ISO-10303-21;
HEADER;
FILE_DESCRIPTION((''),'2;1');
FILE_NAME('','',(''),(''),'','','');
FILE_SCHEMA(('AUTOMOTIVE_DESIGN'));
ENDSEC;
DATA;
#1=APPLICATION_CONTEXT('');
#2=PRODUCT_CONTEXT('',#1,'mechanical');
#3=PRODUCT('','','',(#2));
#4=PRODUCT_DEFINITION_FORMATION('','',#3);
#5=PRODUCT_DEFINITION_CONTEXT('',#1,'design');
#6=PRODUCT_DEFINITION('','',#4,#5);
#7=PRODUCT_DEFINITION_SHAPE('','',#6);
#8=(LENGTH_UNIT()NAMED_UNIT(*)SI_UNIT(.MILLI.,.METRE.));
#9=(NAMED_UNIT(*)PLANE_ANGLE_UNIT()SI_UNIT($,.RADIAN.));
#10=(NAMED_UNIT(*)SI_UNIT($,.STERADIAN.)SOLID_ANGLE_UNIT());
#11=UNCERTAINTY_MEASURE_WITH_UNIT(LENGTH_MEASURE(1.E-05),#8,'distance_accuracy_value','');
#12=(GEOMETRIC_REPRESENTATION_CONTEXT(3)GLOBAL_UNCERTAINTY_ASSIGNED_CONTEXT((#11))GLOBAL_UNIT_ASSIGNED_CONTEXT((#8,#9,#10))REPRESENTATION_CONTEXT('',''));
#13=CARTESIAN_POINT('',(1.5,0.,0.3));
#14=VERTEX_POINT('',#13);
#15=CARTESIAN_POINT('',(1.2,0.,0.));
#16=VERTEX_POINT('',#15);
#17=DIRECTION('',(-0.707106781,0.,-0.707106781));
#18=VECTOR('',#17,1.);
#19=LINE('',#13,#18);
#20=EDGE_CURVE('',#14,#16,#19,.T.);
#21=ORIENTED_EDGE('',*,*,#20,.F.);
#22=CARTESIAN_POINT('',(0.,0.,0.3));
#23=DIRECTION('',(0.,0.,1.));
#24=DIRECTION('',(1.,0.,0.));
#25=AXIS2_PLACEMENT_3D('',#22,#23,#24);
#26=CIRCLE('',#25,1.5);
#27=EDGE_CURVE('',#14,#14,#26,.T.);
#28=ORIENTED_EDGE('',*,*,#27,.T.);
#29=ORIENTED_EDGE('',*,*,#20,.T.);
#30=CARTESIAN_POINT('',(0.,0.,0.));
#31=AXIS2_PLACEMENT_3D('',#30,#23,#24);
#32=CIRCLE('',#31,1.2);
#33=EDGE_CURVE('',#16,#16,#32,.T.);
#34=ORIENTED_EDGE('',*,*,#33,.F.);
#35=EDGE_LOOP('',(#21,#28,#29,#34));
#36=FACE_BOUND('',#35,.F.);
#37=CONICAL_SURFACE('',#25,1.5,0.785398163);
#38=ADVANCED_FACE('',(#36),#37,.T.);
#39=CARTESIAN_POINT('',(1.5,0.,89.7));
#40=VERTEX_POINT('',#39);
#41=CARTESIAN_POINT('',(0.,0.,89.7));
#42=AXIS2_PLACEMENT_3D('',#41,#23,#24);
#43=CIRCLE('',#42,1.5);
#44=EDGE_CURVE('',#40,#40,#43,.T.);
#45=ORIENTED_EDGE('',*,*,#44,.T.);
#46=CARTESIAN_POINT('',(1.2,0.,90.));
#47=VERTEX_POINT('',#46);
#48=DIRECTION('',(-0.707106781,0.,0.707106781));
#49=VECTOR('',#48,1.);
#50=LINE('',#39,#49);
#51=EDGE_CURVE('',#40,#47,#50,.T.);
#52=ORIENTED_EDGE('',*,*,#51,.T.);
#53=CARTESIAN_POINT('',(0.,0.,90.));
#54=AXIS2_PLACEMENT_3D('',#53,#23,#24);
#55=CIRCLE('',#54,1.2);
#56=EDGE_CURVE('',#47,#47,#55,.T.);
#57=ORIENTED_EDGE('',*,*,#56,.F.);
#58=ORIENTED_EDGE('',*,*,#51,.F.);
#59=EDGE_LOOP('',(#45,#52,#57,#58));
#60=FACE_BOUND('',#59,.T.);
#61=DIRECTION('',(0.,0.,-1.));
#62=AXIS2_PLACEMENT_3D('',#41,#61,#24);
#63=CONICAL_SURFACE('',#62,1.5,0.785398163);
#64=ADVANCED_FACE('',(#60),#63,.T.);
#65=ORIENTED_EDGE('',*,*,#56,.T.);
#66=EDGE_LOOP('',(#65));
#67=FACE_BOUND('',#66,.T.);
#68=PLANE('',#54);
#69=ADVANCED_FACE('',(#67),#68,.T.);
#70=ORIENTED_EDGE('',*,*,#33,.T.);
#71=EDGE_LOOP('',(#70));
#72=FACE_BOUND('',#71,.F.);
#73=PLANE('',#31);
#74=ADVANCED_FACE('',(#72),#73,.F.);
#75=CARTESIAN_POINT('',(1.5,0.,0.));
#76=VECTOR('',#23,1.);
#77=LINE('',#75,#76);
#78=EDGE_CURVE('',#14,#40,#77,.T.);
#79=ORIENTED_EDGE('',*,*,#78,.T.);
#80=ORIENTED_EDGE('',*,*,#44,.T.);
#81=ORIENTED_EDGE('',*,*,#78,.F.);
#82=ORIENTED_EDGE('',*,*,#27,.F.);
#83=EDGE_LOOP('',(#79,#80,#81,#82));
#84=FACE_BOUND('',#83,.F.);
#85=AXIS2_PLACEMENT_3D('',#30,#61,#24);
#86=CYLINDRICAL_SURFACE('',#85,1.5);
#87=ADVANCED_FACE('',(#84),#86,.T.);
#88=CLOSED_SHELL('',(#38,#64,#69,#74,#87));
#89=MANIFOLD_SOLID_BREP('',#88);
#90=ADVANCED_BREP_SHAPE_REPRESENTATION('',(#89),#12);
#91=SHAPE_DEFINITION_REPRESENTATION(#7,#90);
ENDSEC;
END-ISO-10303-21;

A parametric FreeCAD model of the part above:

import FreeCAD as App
import Part
import Sketcher

V = App.Vector


def edges_at(feature, points):
    """Names of the edges that pass closest to the given points."""
    edges = feature.Shape.Edges
    near = lambda p: min(range(len(edges)), key=lambda i: edges[i].distToShape(Part.Vertex(*p))[0])
    return sorted({f"Edge{near(p) + 1}" for p in points})

doc = App.newDocument("Part")
body = doc.addObject("PartDesign::Body", "Body")

# Sketch on XY plane
sketch1 = body.newObject("Sketcher::SketchObject", "Sketch")
sketch1.AttachmentSupport = (doc.getObject("XY_Plane"), [""])
sketch1.MapMode = "FlatFace"
sketch1.addGeometry(Part.Circle(V(0, 0, 0), V(0, 0, 1), 1.5), False)
sketch1.addConstraint([
    Sketcher.Constraint("Coincident", 0, 3, -1, 1),
    Sketcher.Constraint("Diameter", 0, 3.0),
])
pad1 = body.newObject("PartDesign::Pad", "Pad")
pad1.Profile = sketch1
pad1.Length = 90
doc.recompute()

chamfer = body.newObject("PartDesign::Chamfer", "Chamfer")
chamfer.Base = (pad1, edges_at(pad1, [(-1.5, 0, 90), (-1.5, 0, 0)]))
chamfer.Size = 0.3

doc.recompute()
